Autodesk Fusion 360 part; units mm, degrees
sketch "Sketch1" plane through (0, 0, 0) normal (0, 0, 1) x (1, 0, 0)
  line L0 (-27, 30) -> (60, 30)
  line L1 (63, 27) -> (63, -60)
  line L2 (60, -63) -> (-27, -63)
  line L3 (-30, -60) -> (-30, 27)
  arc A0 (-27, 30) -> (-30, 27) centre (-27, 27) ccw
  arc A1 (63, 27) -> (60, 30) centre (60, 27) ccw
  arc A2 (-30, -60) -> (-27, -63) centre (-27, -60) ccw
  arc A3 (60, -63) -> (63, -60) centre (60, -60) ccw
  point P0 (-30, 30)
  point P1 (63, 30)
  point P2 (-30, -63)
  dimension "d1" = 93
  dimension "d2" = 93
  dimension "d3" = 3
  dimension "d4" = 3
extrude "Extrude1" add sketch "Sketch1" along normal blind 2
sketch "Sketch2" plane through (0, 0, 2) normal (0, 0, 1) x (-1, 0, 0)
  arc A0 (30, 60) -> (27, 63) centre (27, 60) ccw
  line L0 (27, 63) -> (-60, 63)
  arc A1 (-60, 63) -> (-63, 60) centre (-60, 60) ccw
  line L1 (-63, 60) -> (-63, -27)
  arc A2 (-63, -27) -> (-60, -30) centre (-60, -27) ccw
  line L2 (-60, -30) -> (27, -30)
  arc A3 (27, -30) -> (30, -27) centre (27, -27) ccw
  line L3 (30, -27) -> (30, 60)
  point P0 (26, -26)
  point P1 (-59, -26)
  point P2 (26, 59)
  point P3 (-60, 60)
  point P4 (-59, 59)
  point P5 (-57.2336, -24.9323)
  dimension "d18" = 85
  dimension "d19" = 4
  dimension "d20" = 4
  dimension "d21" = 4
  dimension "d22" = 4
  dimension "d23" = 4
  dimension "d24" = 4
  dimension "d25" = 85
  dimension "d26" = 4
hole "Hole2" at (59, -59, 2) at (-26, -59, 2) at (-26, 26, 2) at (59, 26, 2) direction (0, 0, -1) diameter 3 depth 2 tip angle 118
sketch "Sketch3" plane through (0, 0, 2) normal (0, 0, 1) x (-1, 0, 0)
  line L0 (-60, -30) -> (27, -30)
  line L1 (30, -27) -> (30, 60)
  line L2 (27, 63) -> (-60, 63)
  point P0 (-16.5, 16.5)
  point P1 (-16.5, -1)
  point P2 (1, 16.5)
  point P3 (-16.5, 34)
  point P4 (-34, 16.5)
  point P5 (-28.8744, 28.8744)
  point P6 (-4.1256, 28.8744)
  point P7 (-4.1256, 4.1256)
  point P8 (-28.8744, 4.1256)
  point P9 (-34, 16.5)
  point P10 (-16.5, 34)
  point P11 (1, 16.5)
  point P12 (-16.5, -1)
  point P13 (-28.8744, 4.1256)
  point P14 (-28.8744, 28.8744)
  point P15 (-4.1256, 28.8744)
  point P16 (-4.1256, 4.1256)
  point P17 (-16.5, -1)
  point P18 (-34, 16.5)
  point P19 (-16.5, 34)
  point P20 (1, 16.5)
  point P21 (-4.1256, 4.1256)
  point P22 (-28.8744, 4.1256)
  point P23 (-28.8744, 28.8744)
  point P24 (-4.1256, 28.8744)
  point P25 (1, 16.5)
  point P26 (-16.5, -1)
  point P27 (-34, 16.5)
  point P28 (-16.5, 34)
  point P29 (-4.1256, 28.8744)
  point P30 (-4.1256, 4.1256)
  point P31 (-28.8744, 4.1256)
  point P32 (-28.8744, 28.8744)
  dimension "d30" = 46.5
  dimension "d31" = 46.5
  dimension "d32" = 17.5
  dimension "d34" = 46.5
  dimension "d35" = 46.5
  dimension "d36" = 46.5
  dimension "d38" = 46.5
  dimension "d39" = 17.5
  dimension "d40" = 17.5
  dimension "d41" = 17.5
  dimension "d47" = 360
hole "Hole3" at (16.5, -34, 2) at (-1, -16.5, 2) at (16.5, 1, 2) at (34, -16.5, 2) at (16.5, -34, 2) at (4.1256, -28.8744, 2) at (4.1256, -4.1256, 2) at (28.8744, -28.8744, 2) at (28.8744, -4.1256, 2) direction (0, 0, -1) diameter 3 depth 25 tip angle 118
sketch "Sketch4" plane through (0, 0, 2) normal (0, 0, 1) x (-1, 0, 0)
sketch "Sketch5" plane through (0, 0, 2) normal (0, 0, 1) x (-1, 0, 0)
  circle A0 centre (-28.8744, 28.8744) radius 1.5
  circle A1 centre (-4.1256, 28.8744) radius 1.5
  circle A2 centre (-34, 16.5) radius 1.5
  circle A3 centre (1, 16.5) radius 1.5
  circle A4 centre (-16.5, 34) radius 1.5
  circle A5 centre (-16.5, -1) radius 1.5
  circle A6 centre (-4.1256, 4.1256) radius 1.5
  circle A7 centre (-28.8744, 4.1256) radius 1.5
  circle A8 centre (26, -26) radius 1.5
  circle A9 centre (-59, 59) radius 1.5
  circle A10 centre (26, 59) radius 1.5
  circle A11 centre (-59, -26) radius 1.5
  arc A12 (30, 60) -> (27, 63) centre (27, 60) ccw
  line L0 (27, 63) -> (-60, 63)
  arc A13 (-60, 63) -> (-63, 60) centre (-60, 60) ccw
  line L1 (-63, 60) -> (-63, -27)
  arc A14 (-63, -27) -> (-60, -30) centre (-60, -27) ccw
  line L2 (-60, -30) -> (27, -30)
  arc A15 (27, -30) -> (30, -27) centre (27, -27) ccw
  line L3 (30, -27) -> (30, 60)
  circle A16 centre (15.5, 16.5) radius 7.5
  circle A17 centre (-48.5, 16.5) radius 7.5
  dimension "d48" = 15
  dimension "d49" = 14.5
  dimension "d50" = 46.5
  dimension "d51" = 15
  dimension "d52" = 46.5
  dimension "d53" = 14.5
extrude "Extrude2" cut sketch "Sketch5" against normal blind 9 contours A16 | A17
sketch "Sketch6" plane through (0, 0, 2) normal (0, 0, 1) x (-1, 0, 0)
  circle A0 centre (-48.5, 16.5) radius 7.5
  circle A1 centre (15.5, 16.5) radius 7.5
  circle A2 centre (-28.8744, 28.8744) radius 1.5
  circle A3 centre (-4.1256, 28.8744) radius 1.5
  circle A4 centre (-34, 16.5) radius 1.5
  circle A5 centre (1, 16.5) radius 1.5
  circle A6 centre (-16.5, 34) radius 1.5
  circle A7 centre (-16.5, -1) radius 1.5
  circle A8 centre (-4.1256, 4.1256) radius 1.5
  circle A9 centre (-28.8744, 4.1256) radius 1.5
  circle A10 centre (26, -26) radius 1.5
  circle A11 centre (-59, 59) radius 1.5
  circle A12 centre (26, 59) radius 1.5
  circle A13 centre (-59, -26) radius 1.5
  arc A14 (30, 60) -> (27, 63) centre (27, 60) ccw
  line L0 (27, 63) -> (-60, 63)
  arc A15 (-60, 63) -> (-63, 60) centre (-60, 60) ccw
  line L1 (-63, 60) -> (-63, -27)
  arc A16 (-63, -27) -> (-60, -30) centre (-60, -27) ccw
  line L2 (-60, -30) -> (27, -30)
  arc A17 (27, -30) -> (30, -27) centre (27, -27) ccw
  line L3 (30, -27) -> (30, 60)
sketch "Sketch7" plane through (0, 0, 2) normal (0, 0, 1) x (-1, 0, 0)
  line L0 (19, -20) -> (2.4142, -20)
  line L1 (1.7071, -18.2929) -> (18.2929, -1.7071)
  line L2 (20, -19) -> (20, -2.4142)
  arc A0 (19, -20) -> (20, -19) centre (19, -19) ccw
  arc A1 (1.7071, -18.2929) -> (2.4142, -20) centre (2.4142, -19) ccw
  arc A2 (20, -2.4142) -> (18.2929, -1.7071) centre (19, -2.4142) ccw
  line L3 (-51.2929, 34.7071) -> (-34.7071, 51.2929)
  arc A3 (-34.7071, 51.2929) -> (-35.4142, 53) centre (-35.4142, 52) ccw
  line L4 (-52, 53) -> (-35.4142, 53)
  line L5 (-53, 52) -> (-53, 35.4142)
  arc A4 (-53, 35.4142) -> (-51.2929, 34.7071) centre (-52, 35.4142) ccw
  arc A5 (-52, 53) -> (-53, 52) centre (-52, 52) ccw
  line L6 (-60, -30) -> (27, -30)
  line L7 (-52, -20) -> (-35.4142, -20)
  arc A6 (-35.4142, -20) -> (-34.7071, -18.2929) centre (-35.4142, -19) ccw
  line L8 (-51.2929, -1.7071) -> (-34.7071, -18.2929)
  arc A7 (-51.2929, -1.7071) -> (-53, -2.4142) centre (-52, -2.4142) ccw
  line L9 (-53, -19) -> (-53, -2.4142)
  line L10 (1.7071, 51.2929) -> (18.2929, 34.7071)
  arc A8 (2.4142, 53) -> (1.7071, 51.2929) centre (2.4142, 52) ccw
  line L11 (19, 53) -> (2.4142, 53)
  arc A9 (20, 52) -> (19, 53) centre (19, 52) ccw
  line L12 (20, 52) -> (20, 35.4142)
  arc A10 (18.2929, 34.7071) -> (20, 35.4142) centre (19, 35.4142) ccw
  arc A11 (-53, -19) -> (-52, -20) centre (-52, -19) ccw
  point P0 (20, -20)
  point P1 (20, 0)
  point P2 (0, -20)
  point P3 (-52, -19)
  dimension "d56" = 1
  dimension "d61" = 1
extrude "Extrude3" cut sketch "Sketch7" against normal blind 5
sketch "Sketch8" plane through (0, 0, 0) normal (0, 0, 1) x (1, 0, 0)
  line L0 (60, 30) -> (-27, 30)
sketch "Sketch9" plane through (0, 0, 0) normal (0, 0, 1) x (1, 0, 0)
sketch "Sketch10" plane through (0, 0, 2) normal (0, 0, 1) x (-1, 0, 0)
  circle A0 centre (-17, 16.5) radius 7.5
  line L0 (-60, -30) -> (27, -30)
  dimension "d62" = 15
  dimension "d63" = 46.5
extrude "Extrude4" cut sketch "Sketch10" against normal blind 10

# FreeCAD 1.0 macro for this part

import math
import FreeCAD as App
import Part
import Sketcher
from FreeCAD import Vector
Q = App.Units.Quantity

doc = App.newDocument("Part")
params = doc.addObject("Spreadsheet::Sheet", "Params")
for row, (alias, value) in enumerate([
    ("sketch1_radius", "3 mm"),
    ("sketch1_width", "87 mm"),
    ("pad1_length", "2 mm"),
    ("sketch2_diameter", "3 mm"),
    ("hole_diameter", "3 mm"),
    ("hole_depth", "2 mm"),
    ("sketch3_diameter", "3 mm"),
    ("hole2_diameter", "3 mm"),
    ("hole2_depth", "25 mm"),
    ("sketch4_diameter", "15 mm"),
    ("pocket1_length", "9 mm"),
    ("sketch5_radius", "1 mm"),
    ("pocket2_length", "5 mm"),
    ("sketch6_diameter", "15 mm"),
    ("pocket3_length", "10 mm"),
], start=1):
    params.set(f"A{row}", alias)
    params.set(f"B{row}", "=" + value)
    params.setAlias(f"B{row}", alias)

body = doc.addObject("PartDesign::Body", "Body")

sketch1 = body.newObject("Sketcher::SketchObject", "Sketch")
sketch1.AttachmentSupport = (doc.getObject("XY_Plane"), [""])
sketch1.MapMode = "FlatFace"
sketch1.addGeometry([
    Part.LineSegment(Vector(60, 30, 0), Vector(-27, 30, 0)),
    Part.ArcOfCircle(Part.Circle(Vector(-27, 27, 0), Vector(0, 0, 1), 3), math.radians(90), math.radians(180)),
    Part.LineSegment(Vector(-30, 27, 0), Vector(-30, -60, 0)),
    Part.ArcOfCircle(Part.Circle(Vector(-27, -60, 0), Vector(0, 0, 1), 3), math.radians(180), math.radians(270)),
    Part.LineSegment(Vector(-27, -63, 0), Vector(60, -63, 0)),
    Part.ArcOfCircle(Part.Circle(Vector(60, -60, 0), Vector(0, 0, 1), 3), math.radians(-90), math.radians(0)),
    Part.LineSegment(Vector(63, -60, 0), Vector(63, 27, 0)),
    Part.ArcOfCircle(Part.Circle(Vector(60, 27, 0), Vector(0, 0, 1), 3), math.radians(0), math.radians(90)),
], False)
sketch1.addConstraint([
    Sketcher.Constraint("Tangent", 0, 2, 1, 1),
    Sketcher.Constraint("Tangent", 1, 2, 2, 1),
    Sketcher.Constraint("Tangent", 2, 2, 3, 1),
    Sketcher.Constraint("Tangent", 3, 2, 4, 1),
    Sketcher.Constraint("Tangent", 4, 2, 5, 1),
    Sketcher.Constraint("Tangent", 5, 2, 6, 1),
    Sketcher.Constraint("Tangent", 6, 2, 7, 1),
    Sketcher.Constraint("Tangent", 7, 2, 0, 1),
    Sketcher.Constraint("Horizontal", 0),
    Sketcher.Constraint("Vertical", 2),
    Sketcher.Constraint("Horizontal", 4),
    Sketcher.Constraint("Vertical", 6),
    Sketcher.Constraint("Equal", 1, 3),
    Sketcher.Constraint("Equal", 3, 5),
    Sketcher.Constraint("Equal", 5, 7),
    Sketcher.Constraint("Equal", 4, 2),
    Sketcher.Constraint("Radius", 1, Q("3 mm")),
    Sketcher.Constraint("DistanceX", 0, 2, 0, 1, Q("87 mm")),
    Sketcher.Constraint("DistanceX", 1, 3, -1, 1, Q("27 mm")),
    Sketcher.Constraint("DistanceY", -1, 1, 1, 3, Q("27 mm")),
])
sketch1.setExpression("Constraints[16]", "Params.sketch1_radius")
sketch1.setExpression("Constraints[17]", "Params.sketch1_width")
pad1 = body.newObject("PartDesign::Pad", "Pad")
pad1.Profile = sketch1
pad1.setExpression("Length", "Params.pad1_length")

sketch2 = body.newObject("Sketcher::SketchObject", "Sketch001")
sketch2.AttachmentSupport = (doc.getObject("XY_Plane"), [""])
sketch2.MapMode = "FlatFace"
sketch2.AttachmentOffset = App.Placement(Vector(0, 0, 2), App.Rotation())
sketch2.addGeometry([
    Part.Circle(Vector(59, -59, 0), Vector(0, 0, 1), 1.5),
    Part.Circle(Vector(-26, -59, 0), Vector(0, 0, 1), 1.5),
    Part.Circle(Vector(-26, 26, 0), Vector(0, 0, 1), 1.5),
    Part.Circle(Vector(59, 26, 0), Vector(0, 0, 1), 1.5),
], False)
sketch2.addConstraint([
    Sketcher.Constraint("Equal", 0, 1),
    Sketcher.Constraint("Equal", 1, 2),
    Sketcher.Constraint("Equal", 2, 3),
    Sketcher.Constraint("Horizontal", 0, 3, 1, 3),
    Sketcher.Constraint("Horizontal", 2, 3, 3, 3),
    Sketcher.Constraint("Vertical", 1, 3, 2, 3),
    Sketcher.Constraint("Vertical", 0, 3, 3, 3),
    Sketcher.Constraint("Diameter", 0, Q("3 mm")),
    Sketcher.Constraint("DistanceX", -1, 1, 0, 3, Q("59 mm")),
    Sketcher.Constraint("DistanceY", 0, 3, -1, 1, Q("59 mm")),
    Sketcher.Constraint("DistanceX", 1, 3, -1, 1, Q("26 mm")),
    Sketcher.Constraint("DistanceY", -1, 1, 2, 3, Q("26 mm")),
])
sketch2.setExpression("Constraints[7]", "Params.sketch2_diameter")
doc.recompute()
hole = body.newObject("PartDesign::Hole", "Hole")
hole.Profile = sketch2
hole.ThreadType = "None"
hole.setExpression("Diameter", "Params.hole_diameter")
hole.DepthType = "Dimension"
hole.setExpression("Depth", "Params.hole_depth")
hole.DrillPoint = "Angled"
hole.DrillPointAngle = 118

sketch3 = body.newObject("Sketcher::SketchObject", "Sketch002")
sketch3.AttachmentSupport = (doc.getObject("XY_Plane"), [""])
sketch3.MapMode = "FlatFace"
sketch3.AttachmentOffset = App.Placement(Vector(0, 0, 2), App.Rotation())
sketch3.addGeometry([
    Part.Circle(Vector(16.5, -34, 0), Vector(0, 0, 1), 1.5),
    Part.Circle(Vector(-1, -16.5, 0), Vector(0, 0, 1), 1.5),
    Part.Circle(Vector(16.5, 1, 0), Vector(0, 0, 1), 1.5),
    Part.Circle(Vector(34, -16.5, 0), Vector(0, 0, 1), 1.5),
    Part.Circle(Vector(16.5, -34, 0), Vector(0, 0, 1), 1.5),
    Part.Circle(Vector(4.1, -28.9, 0), Vector(0, 0, 1), 1.5),
    Part.Circle(Vector(4.1, -4.1, 0), Vector(0, 0, 1), 1.5),
    Part.Circle(Vector(28.9, -28.9, 0), Vector(0, 0, 1), 1.5),
    Part.Circle(Vector(28.9, -4.1, 0), Vector(0, 0, 1), 1.5),
], False)
sketch3.addConstraint([
    Sketcher.Constraint("Coincident", 4, 3, 0, 3),
    Sketcher.Constraint("Equal", 0, 1),
    Sketcher.Constraint("Equal", 1, 2),
    Sketcher.Constraint("Equal", 2, 3),
    Sketcher.Constraint("Equal", 3, 4),
    Sketcher.Constraint("Equal", 4, 5),
    Sketcher.Constraint("Equal", 5, 6),
    Sketcher.Constraint("Equal", 6, 7),
    Sketcher.Constraint("Equal", 7, 8),
    Sketcher.Constraint("Horizontal", 1, 3, 3, 3),
    Sketcher.Constraint("Horizontal", 5, 3, 7, 3),
    Sketcher.Constraint("Horizontal", 6, 3, 8, 3),
    Sketcher.Constraint("Vertical", 0, 3, 2, 3),
    Sketcher.Constraint("Vertical", 5, 3, 6, 3),
    Sketcher.Constraint("Vertical", 7, 3, 8, 3),
    Sketcher.Constraint("Diameter", 0, Q("3 mm")),
    Sketcher.Constraint("DistanceY", 0, 3, -1, 1, Q("34 mm")),
    Sketcher.Constraint("DistanceX", 1, 3, -1, 1, Q("1 mm")),
    Sketcher.Constraint("DistanceY", -1, 1, 2, 3, Q("1 mm")),
    Sketcher.Constraint("DistanceX", -1, 1, 3, 3, Q("34 mm")),
    Sketcher.Constraint("DistanceX", -1, 1, 0, 3, Q("16.5 mm")),
    Sketcher.Constraint("DistanceY", 1, 3, -1, 1, Q("16.5 mm")),
    Sketcher.Constraint("DistanceX", -1, 1, 5, 3, Q("4.1256 mm")),
    Sketcher.Constraint("DistanceY", 5, 3, -1, 1, Q("28.8744 mm")),
    Sketcher.Constraint("DistanceY", 6, 3, -1, 1, Q("4.1256 mm")),
    Sketcher.Constraint("DistanceX", -1, 1, 7, 3, Q("28.8744 mm")),
])
sketch3.setExpression("Constraints[15]", "Params.sketch3_diameter")
doc.recompute()
hole2 = body.newObject("PartDesign::Hole", "Hole001")
hole2.Profile = sketch3
hole2.ThreadType = "None"
hole2.setExpression("Diameter", "Params.hole2_diameter")
hole2.DepthType = "Dimension"
hole2.setExpression("Depth", "Params.hole2_depth")
hole2.DrillPoint = "Angled"
hole2.DrillPointAngle = 118

sketch4 = body.newObject("Sketcher::SketchObject", "Sketch003")
sketch4.AttachmentSupport = (doc.getObject("XY_Plane"), [""])
sketch4.MapMode = "FlatFace"
sketch4.AttachmentOffset = App.Placement(Vector(0, 0, 2), App.Rotation())
sketch4.addGeometry([
    Part.Circle(Vector(-16, -16, 0), Vector(0, 0, 1), 8),
    Part.Circle(Vector(48, -16, 0), Vector(0, 0, 1), 8),
], False)
sketch4.addConstraint([
    Sketcher.Constraint("Equal", 0, 1),
    Sketcher.Constraint("Horizontal", 0, 3, 1, 3),
    Sketcher.Constraint("Diameter", 0, Q("15 mm")),
    Sketcher.Constraint("DistanceX", 0, 3, 1, 3, Q("64 mm")),
    Sketcher.Constraint("DistanceX", 0, 3, -1, 1, Q("15.5 mm")),
    Sketcher.Constraint("DistanceY", 0, 3, -1, 1, Q("16.5 mm")),
])
sketch4.setExpression("Constraints[2]", "Params.sketch4_diameter")
pocket1 = body.newObject("PartDesign::Pocket", "Pocket")
pocket1.Profile = sketch4
pocket1.setExpression("Length", "Params.pocket1_length")

sketch5 = body.newObject("Sketcher::SketchObject", "Sketch004")
sketch5.AttachmentSupport = (doc.getObject("XY_Plane"), [""])
sketch5.MapMode = "FlatFace"
sketch5.AttachmentOffset = App.Placement(Vector(0, 0, 2), App.Rotation())
sketch5.addGeometry([
    Part.LineSegment(Vector(-2.4, 20, 0), Vector(-19, 20, 0)),
    Part.ArcOfCircle(Part.Circle(Vector(-19, 19, 0), Vector(0, 0, 1), 1), math.radians(90), math.radians(180)),
    Part.LineSegment(Vector(-20, 19, 0), Vector(-20, 2.4, 0)),
    Part.ArcOfCircle(Part.Circle(Vector(-19, 2.4, 0), Vector(0, 0, 1), 1), math.radians(180), math.radians(315)),
    Part.LineSegment(Vector(-18.3, 1.7, 0), Vector(-1.7, 18.3, 0)),
    Part.ArcOfCircle(Part.Circle(Vector(-2.4, 19, 0), Vector(0, 0, 1), 1), math.radians(-45), math.radians(90)),
    Part.ArcOfCircle(Part.Circle(Vector(52, -35.4, 0), Vector(0, 0, 1), 1), math.radians(0), math.radians(135)),
    Part.LineSegment(Vector(51.3, -34.7, 0), Vector(34.7, -51.3, 0)),
    Part.ArcOfCircle(Part.Circle(Vector(35.4, -52, 0), Vector(0, 0, 1), 1), math.radians(135), math.radians(270)),
    Part.LineSegment(Vector(35.4, -53, 0), Vector(52, -53, 0)),
    Part.ArcOfCircle(Part.Circle(Vector(52, -52, 0), Vector(0, 0, 1), 1), math.radians(-90), math.radians(0)),
    Part.LineSegment(Vector(53, -52, 0), Vector(53, -35.4, 0)),
    Part.ArcOfCircle(Part.Circle(Vector(52, 19, 0), Vector(0, 0, 1), 1), math.radians(0), math.radians(90)),
    Part.LineSegment(Vector(52, 20, 0), Vector(35.4, 20, 0)),
    Part.ArcOfCircle(Part.Circle(Vector(35.4, 19, 0), Vector(0, 0, 1), 1), math.radians(90), math.radians(225)),
    Part.LineSegment(Vector(34.7, 18.3, 0), Vector(51.3, 1.7, 0)),
    Part.ArcOfCircle(Part.Circle(Vector(52, 2.4, 0), Vector(0, 0, 1), 1), math.radians(-135), math.radians(0)),
    Part.LineSegment(Vector(53, 2.4, 0), Vector(53, 19, 0)),
    Part.ArcOfCircle(Part.Circle(Vector(-2.4, -52, 0), Vector(0, 0, 1), 1), math.radians(-90), math.radians(45)),
    Part.LineSegment(Vector(-1.7, -51.3, 0), Vector(-18.3, -34.7, 0)),
    Part.ArcOfCircle(Part.Circle(Vector(-19, -35.4, 0), Vector(0, 0, 1), 1), math.radians(45), math.radians(180)),
    Part.LineSegment(Vector(-20, -35.4, 0), Vector(-20, -52, 0)),
    Part.ArcOfCircle(Part.Circle(Vector(-19, -52, 0), Vector(0, 0, 1), 1), math.radians(180), math.radians(270)),
    Part.LineSegment(Vector(-19, -53, 0), Vector(-2.4, -53, 0)),
], False)
sketch5.addConstraint([
    Sketcher.Constraint("Tangent", 0, 2, 1, 1),
    Sketcher.Constraint("Tangent", 1, 2, 2, 1),
    Sketcher.Constraint("Tangent", 2, 2, 3, 1),
    Sketcher.Constraint("Tangent", 3, 2, 4, 1),
    Sketcher.Constraint("Tangent", 4, 2, 5, 1),
    Sketcher.Constraint("Tangent", 5, 2, 0, 1),
    Sketcher.Constraint("Tangent", 6, 2, 7, 1),
    Sketcher.Constraint("Tangent", 7, 2, 8, 1),
    Sketcher.Constraint("Tangent", 8, 2, 9, 1),
    Sketcher.Constraint("Tangent", 9, 2, 10, 1),
    Sketcher.Constraint("Tangent", 10, 2, 11, 1),
    Sketcher.Constraint("Tangent", 11, 2, 6, 1),
    Sketcher.Constraint("Tangent", 12, 2, 13, 1),
    Sketcher.Constraint("Tangent", 13, 2, 14, 1),
    Sketcher.Constraint("Tangent", 14, 2, 15, 1),
    Sketcher.Constraint("Tangent", 15, 2, 16, 1),
    Sketcher.Constraint("Tangent", 16, 2, 17, 1),
    Sketcher.Constraint("Tangent", 17, 2, 12, 1),
    Sketcher.Constraint("Tangent", 18, 2, 19, 1),
    Sketcher.Constraint("Tangent", 19, 2, 20, 1),
    Sketcher.Constraint("Tangent", 20, 2, 21, 1),
    Sketcher.Constraint("Tangent", 21, 2, 22, 1),
    Sketcher.Constraint("Tangent", 22, 2, 23, 1),
    Sketcher.Constraint("Tangent", 23, 2, 18, 1),
    Sketcher.Constraint("Horizontal", 0),
    Sketcher.Constraint("Vertical", 2),
    Sketcher.Constraint("Horizontal", 9),
    Sketcher.Constraint("Vertical", 11),
    Sketcher.Constraint("Horizontal", 13),
    Sketcher.Constraint("Vertical", 17),
    Sketcher.Constraint("Vertical", 21),
    Sketcher.Constraint("Horizontal", 23),
    Sketcher.Constraint("Equal", 1, 3),
    Sketcher.Constraint("Equal", 3, 5),
    Sketcher.Constraint("Equal", 5, 6),
    Sketcher.Constraint("Equal", 6, 8),
    Sketcher.Constraint("Equal", 8, 10),
    Sketcher.Constraint("Equal", 10, 12),
    Sketcher.Constraint("Equal", 12, 14),
    Sketcher.Constraint("Equal", 14, 16),
    Sketcher.Constraint("Equal", 16, 18),
    Sketcher.Constraint("Equal", 18, 20),
    Sketcher.Constraint("Equal", 20, 22),
    Sketcher.Constraint("Parallel", 4, 7),
    Sketcher.Constraint("Perpendicular", 7, 15),
    Sketcher.Constraint("Parallel", 15, 19),
    Sketcher.Constraint("Horizontal", 5, 3, 12, 3),
    Sketcher.Constraint("Horizontal", 3, 3, 16, 3),
    Sketcher.Constraint("Horizontal", 10, 3, 18, 3),
    Sketcher.Constraint("Horizontal", 6, 3, 20, 3),
    Sketcher.Constraint("Horizontal", 4, 2, 14, 2),
    Sketcher.Constraint("Vertical", 10, 3, 12, 3),
    Sketcher.Constraint("Vertical", 8, 3, 14, 3),
    Sketcher.Constraint("Vertical", 5, 3, 18, 3),
    Sketcher.Constraint("Radius", 1, Q("1 mm")),
    Sketcher.Constraint("DistanceX", 1, 3, -1, 1, Q("19 mm")),
    Sketcher.Constraint("DistanceY", -1, 1, 1, 3, Q("19 mm")),
    Sketcher.Constraint("DistanceX", -1, 1, 6, 3, Q("52 mm")),
    Sketcher.Constraint("DistanceY", 8, 3, -1, 1, Q("52 mm")),
    Sketcher.Constraint("DistanceX", 0, 2, 0, 1, Q("16.5858 mm")),
])
sketch5.setExpression("Constraints[54]", "Params.sketch5_radius")
pocket2 = body.newObject("PartDesign::Pocket", "Pocket001")
pocket2.Profile = sketch5
pocket2.setExpression("Length", "Params.pocket2_length")

sketch6 = body.newObject("Sketcher::SketchObject", "Sketch005")
sketch6.AttachmentSupport = (doc.getObject("XY_Plane"), [""])
sketch6.MapMode = "FlatFace"
sketch6.AttachmentOffset = App.Placement(Vector(0, 0, 2), App.Rotation())
sketch6.addGeometry(Part.Circle(Vector(17, -16, 0), Vector(0, 0, 1), 8), False)
sketch6.addConstraint([
    Sketcher.Constraint("Diameter", 0, Q("15 mm")),
    Sketcher.Constraint("DistanceX", -1, 1, 0, 3, Q("17 mm")),
    Sketcher.Constraint("DistanceY", 0, 3, -1, 1, Q("16.5 mm")),
])
sketch6.setExpression("Constraints[0]", "Params.sketch6_diameter")
pocket3 = body.newObject("PartDesign::Pocket", "Pocket002")
pocket3.Profile = sketch6
pocket3.setExpression("Length", "Params.pocket3_length")

doc.recompute()
